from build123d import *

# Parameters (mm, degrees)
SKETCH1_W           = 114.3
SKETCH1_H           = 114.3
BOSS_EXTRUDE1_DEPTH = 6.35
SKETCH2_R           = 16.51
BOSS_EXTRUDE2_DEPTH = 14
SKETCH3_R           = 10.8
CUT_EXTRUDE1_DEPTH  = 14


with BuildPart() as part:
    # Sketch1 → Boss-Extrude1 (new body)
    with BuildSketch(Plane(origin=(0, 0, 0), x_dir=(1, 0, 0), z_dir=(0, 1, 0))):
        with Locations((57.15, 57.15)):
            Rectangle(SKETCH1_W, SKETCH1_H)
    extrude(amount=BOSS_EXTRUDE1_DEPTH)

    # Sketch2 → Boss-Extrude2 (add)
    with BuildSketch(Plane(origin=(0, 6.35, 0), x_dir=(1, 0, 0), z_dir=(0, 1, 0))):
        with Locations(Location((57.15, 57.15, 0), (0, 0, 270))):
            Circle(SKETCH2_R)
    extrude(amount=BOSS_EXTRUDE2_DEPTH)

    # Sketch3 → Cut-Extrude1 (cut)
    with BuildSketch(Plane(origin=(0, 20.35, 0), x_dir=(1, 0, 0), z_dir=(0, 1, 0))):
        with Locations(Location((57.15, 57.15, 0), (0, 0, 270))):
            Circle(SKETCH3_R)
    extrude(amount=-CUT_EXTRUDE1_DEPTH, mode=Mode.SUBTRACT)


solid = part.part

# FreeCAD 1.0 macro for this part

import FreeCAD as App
import Part
import Sketcher
Q = App.Units.Quantity

doc = App.newDocument("Part")
body = doc.addObject("PartDesign::Body", "Body")

sketch1 = doc.addObject("Sketcher::SketchObject", "Sketch")
body.addObject(sketch1)
sketch1.AttachmentSupport = (doc.XZ_Plane, [""])
sketch1.MapMode = "FlatFace"
sketch1.addGeometry(Part.LineSegment(App.Vector(0, -114, 0), App.Vector(0, 0, 0)), False)
sketch1.addGeometry(Part.LineSegment(App.Vector(0, 0, 0), App.Vector(114, 0, 0)), False)
sketch1.addGeometry(Part.LineSegment(App.Vector(114, 0, 0), App.Vector(114, -114, 0)), False)
sketch1.addGeometry(Part.LineSegment(App.Vector(114, -114, 0), App.Vector(0, -114, 0)), False)
sketch1.addConstraint(Sketcher.Constraint("Coincident", 0, 2, 1, 1))
sketch1.addConstraint(Sketcher.Constraint("Coincident", 1, 2, 2, 1))
sketch1.addConstraint(Sketcher.Constraint("Coincident", 2, 2, 3, 1))
sketch1.addConstraint(Sketcher.Constraint("Coincident", 3, 2, 0, 1))
sketch1.addConstraint(Sketcher.Constraint("Vertical", 0))
sketch1.addConstraint(Sketcher.Constraint("Horizontal", 1))
sketch1.addConstraint(Sketcher.Constraint("Vertical", 2))
sketch1.addConstraint(Sketcher.Constraint("Horizontal", 3))
sketch1.addConstraint(Sketcher.Constraint("Coincident", 0, 2, -1, 1))
sketch1.addConstraint(Sketcher.Constraint("Equal", 3, 0))
sketch1.addConstraint(Sketcher.Constraint("DistanceX", 1, 1, 1, 2, Q("4.5 in")))
pad1 = doc.addObject("PartDesign::Pad", "Pad")
body.addObject(pad1)
pad1.Profile = sketch1
pad1.Length = Q("0.25 in")
pad1.Reversed = True

sketch2 = doc.addObject("Sketcher::SketchObject", "Sketch001")
body.addObject(sketch2)
sketch2.AttachmentSupport = (doc.XZ_Plane, [""])
sketch2.MapMode = "FlatFace"
sketch2.AttachmentOffset = App.Placement(App.Vector(0, 0, -0.25 * 25.4), App.Rotation())
sketch2.addGeometry(Part.Circle(App.Vector(57, -57, 0), App.Vector(0, 0, 1), 17), False)
sketch2.addConstraint(Sketcher.Constraint("Diameter", 0, Q("1.3 in")))
sketch2.addConstraint(Sketcher.Constraint("DistanceX", -1, 1, 0, 3, Q("2.25 in")))
sketch2.addConstraint(Sketcher.Constraint("DistanceY", 0, 3, -1, 1, Q("2.25 in")))
pad2 = doc.addObject("PartDesign::Pad", "Pad001")
body.addObject(pad2)
pad2.Profile = sketch2
pad2.Length = 14
pad2.Reversed = True

sketch3 = doc.addObject("Sketcher::SketchObject", "Sketch002")
body.addObject(sketch3)
sketch3.AttachmentSupport = (doc.XZ_Plane, [""])
sketch3.MapMode = "FlatFace"
sketch3.AttachmentOffset = App.Placement(App.Vector(0, 0, -20.35), App.Rotation())
sketch3.addGeometry(Part.Circle(App.Vector(57, -57, 0), App.Vector(0, 0, 1), 11), False)
sketch3.addConstraint(Sketcher.Constraint("Diameter", 0, 21.6))
sketch3.addConstraint(Sketcher.Constraint("DistanceX", -1, 1, 0, 3, Q("2.25 in")))
sketch3.addConstraint(Sketcher.Constraint("DistanceY", 0, 3, -1, 1, Q("2.25 in")))
pocket1 = doc.addObject("PartDesign::Pocket", "Pocket")
body.addObject(pocket1)
pocket1.Profile = sketch3
pocket1.Length = 14
pocket1.Reversed = True

doc.recompute()
